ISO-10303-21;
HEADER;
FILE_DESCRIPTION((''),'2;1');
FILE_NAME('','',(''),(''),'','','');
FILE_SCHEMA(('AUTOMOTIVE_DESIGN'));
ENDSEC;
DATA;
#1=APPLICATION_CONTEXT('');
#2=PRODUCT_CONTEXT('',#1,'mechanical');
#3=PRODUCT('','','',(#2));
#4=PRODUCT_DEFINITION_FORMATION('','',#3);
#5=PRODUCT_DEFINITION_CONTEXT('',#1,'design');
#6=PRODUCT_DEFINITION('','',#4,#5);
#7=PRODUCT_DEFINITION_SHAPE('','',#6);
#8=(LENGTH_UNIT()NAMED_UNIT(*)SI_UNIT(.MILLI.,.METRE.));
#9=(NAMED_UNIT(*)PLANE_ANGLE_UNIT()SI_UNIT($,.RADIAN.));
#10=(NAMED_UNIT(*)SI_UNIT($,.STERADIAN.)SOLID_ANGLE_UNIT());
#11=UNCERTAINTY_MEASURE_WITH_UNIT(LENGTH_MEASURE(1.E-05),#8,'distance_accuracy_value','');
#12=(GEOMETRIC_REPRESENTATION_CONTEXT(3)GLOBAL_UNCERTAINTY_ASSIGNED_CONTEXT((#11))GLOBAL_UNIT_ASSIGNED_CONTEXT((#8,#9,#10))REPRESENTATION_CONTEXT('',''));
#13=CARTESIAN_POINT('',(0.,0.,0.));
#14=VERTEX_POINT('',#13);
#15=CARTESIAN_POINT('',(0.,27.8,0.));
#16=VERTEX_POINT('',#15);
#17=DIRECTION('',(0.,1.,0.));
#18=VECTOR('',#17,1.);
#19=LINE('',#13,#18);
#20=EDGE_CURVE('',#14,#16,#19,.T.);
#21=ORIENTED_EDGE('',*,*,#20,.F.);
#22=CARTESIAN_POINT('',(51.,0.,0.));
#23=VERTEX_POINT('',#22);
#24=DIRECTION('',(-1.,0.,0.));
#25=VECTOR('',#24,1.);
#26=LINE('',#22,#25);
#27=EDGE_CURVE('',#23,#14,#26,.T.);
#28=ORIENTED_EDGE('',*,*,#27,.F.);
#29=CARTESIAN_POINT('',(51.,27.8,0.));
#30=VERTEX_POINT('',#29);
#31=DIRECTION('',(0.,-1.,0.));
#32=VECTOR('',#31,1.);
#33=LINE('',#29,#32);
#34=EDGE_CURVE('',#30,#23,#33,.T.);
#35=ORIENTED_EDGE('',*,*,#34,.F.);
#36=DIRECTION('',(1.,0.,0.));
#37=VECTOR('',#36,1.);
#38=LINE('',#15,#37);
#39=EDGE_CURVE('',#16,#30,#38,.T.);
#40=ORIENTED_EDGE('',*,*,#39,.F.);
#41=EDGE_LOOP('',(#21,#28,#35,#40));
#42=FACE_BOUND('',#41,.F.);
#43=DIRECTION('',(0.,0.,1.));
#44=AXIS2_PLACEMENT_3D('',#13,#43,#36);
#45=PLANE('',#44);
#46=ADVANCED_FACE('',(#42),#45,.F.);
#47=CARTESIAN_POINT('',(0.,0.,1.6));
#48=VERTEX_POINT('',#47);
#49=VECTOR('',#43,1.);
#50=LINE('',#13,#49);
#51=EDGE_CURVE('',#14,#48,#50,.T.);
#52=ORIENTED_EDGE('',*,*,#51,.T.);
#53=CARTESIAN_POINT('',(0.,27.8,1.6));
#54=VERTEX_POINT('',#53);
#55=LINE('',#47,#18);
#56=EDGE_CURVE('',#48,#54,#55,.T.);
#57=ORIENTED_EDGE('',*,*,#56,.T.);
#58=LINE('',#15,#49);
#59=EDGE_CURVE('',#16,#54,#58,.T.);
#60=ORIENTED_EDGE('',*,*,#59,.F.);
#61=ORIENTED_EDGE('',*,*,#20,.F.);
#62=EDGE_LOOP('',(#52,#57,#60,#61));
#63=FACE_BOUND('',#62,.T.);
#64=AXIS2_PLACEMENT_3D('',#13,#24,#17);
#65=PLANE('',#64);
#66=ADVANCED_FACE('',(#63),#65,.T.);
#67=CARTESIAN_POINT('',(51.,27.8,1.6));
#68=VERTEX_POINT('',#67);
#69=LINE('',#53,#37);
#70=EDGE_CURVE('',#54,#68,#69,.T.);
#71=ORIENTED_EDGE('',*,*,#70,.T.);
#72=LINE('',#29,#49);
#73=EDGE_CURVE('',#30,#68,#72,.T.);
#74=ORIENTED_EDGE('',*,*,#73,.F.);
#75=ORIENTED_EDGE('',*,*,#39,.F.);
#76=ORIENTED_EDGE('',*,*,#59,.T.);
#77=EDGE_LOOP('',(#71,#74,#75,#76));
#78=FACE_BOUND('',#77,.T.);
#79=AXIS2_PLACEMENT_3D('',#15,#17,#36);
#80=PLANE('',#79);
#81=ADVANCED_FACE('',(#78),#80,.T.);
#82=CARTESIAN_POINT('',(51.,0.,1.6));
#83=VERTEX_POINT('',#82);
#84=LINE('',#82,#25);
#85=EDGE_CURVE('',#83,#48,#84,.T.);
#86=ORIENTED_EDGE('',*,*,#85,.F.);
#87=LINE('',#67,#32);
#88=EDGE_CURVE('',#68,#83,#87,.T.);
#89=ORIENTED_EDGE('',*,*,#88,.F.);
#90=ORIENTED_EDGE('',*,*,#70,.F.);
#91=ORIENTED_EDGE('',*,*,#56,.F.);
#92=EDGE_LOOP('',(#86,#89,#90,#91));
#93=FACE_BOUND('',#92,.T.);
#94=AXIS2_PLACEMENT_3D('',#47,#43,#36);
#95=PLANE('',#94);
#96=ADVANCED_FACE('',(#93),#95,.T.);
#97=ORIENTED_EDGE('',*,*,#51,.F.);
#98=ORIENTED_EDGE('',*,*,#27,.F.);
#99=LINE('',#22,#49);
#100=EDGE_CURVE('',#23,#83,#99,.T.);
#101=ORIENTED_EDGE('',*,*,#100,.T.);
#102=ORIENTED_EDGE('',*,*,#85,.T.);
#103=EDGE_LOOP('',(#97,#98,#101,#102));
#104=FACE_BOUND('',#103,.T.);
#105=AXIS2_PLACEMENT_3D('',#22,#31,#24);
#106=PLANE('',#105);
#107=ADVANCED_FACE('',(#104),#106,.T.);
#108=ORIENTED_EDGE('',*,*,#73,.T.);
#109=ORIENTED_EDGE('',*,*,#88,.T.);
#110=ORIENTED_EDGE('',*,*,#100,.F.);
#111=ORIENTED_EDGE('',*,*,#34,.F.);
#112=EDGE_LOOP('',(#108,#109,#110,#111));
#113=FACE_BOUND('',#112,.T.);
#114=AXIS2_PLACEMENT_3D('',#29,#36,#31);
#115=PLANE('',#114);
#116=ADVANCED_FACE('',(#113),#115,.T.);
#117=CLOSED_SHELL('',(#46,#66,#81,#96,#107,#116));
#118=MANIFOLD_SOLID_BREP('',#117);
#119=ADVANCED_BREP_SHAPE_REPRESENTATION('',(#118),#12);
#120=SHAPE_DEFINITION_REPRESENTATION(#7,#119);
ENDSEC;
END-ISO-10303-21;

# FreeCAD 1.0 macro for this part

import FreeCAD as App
import Part
import Sketcher
from FreeCAD import Vector


def add_polygon(sketch, points):
    """Adds a closed chain of lines whose ends are joined by coincident constraints."""
    first, n = sketch.GeometryCount, len(points)
    for a, b in zip(points, points[1:] + points[:1]):
        sketch.addGeometry(Part.LineSegment(App.Vector(*a, 0), App.Vector(*b, 0)), False)
    for i in range(n):
        sketch.addConstraint(Sketcher.Constraint("Coincident", first + i, 2, first + (i + 1) % n, 1))

doc = App.newDocument("Part")
body = doc.addObject("PartDesign::Body", "Body")

# Sketch on XY plane
sketch1 = body.newObject("Sketcher::SketchObject", "Sketch")
sketch1.AttachmentSupport = (doc.getObject("XY_Plane"), [""])
sketch1.MapMode = "FlatFace"
add_polygon(sketch1, [(0, 0), (51, 0), (51, 28), (0, 28)])  # lines 0-3
sketch1.addConstraint([
    Sketcher.Constraint("Horizontal", 0),
    Sketcher.Constraint("Vertical", 1),
    Sketcher.Constraint("Horizontal", 2),
    Sketcher.Constraint("Vertical", 3),
    Sketcher.Constraint("Coincident", 3, 2, -1, 1),
    Sketcher.Constraint("DistanceX", 0, 1, 0, 2, 51.0),
    Sketcher.Constraint("DistanceY", 1, 1, 1, 2, 27.8),
])
pad1 = body.newObject("PartDesign::Pad", "Pad")
pad1.Profile = sketch1
pad1.Length = 1.6

doc.recompute()
